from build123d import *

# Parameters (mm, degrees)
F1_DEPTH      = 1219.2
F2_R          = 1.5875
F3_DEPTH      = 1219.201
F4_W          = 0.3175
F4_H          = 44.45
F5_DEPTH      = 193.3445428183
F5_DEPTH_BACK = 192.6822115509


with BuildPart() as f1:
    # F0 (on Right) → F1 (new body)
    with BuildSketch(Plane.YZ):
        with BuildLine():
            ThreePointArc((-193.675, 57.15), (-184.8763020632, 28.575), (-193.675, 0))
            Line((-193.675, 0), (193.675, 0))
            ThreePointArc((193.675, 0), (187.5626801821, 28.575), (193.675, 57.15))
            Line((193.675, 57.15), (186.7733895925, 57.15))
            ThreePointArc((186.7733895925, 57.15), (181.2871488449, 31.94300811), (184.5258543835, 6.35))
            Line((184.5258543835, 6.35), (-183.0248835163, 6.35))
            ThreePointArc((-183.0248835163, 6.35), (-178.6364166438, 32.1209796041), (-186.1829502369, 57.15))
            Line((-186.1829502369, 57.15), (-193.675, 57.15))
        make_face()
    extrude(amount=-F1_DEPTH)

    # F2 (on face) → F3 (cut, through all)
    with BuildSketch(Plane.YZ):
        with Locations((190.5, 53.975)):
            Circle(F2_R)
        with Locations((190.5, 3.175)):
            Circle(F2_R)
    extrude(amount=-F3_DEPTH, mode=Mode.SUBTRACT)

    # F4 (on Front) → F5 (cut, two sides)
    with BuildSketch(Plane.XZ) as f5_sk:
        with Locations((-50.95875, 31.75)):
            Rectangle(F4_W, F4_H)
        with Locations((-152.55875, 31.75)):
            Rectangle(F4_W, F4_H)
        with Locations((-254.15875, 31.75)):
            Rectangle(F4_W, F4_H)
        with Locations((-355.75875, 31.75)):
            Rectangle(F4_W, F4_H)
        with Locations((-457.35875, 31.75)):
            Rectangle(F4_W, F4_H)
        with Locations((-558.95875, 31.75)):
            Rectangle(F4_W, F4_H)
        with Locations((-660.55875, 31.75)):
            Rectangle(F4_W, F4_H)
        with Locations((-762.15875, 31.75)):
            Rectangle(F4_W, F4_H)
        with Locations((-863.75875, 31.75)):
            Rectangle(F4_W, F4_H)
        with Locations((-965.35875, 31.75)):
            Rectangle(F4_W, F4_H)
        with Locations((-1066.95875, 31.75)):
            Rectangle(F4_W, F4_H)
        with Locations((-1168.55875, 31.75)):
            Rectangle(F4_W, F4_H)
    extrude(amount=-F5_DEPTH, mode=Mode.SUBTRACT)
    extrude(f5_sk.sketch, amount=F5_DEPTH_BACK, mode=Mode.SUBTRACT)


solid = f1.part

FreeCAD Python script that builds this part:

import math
import FreeCAD as App
import Part
import Sketcher
from FreeCAD import Vector
Q = App.Units.Quantity

doc = App.newDocument("Part")
params = doc.addObject("Spreadsheet::Sheet", "Params")
for row, (alias, value) in enumerate([
    ("sketch1_radius", "2 in"),
    ("sketch1_radius2", "3 in"),
    ("sketch1_radius3", "2.75 in"),
    ("sketch1_radius4", "2.25 in"),
    ("sketch1_width", "15.25 in"),
    ("pad1_length", "48 in"),
    ("sketch2_diameter", "0.125 in"),
    ("sketch3_height", "1.75 in"),
], start=1):
    params.set(f"A{row}", alias)
    params.set(f"B{row}", "=" + value)
    params.setAlias(f"B{row}", alias)

body = doc.addObject("PartDesign::Body", "Body")

# Sketch on YZ plane
sketch1 = body.newObject("Sketcher::SketchObject", "Sketch")
sketch1.AttachmentSupport = (doc.getObject("YZ_Plane"), [""])
sketch1.MapMode = "FlatFace"
sketch1.addGeometry(Part.ArcOfCircle(Part.Circle(Vector(-236, 29, 0), Vector(0, 0, 1), 51), math.radians(-34), math.radians(34)), False)
sketch1.addGeometry(Part.LineSegment(Vector(-194, 0, 0), Vector(194, 0, 0)), False)
sketch1.addGeometry(Part.ArcOfCircle(Part.Circle(Vector(257, 29, 0), Vector(0, 0, 1), 70), math.radians(156), math.radians(204)), False)
sketch1.addGeometry(Part.LineSegment(Vector(194, 57, 0), Vector(187, 57, 0)), False)
sketch1.addGeometry(Part.ArcOfCircle(Part.Circle(Vector(257, 29, 0), Vector(0, 0, 1), 76), math.radians(158), math.radians(197)), False)
sketch1.addGeometry(Part.LineSegment(Vector(185, 6, 0), Vector(-183, 6, 0)), False)
sketch1.addGeometry(Part.ArcOfCircle(Part.Circle(Vector(-236, 29, 0), Vector(0, 0, 1), 57), math.radians(-23), math.radians(30)), False)
sketch1.addGeometry(Part.LineSegment(Vector(-186, 57, 0), Vector(-194, 57, 0)), False)
sketch1.addConstraint(Sketcher.Constraint("Coincident", 0, 1, 1, 1))
sketch1.addConstraint(Sketcher.Constraint("Coincident", 1, 2, 2, 2))
sketch1.addConstraint(Sketcher.Constraint("Coincident", 2, 1, 3, 1))
sketch1.addConstraint(Sketcher.Constraint("Coincident", 3, 2, 4, 1))
sketch1.addConstraint(Sketcher.Constraint("Coincident", 4, 2, 5, 1))
sketch1.addConstraint(Sketcher.Constraint("Coincident", 5, 2, 6, 1))
sketch1.addConstraint(Sketcher.Constraint("Coincident", 6, 2, 7, 1))
sketch1.addConstraint(Sketcher.Constraint("Coincident", 7, 2, 0, 2))
sketch1.addConstraint(Sketcher.Constraint("Horizontal", 1))
sketch1.addConstraint(Sketcher.Constraint("Horizontal", 3))
sketch1.addConstraint(Sketcher.Constraint("Horizontal", 5))
sketch1.addConstraint(Sketcher.Constraint("Horizontal", 7))
sketch1.addConstraint(Sketcher.Constraint("Coincident", 4, 3, 2, 3))
sketch1.addConstraint(Sketcher.Constraint("Coincident", 6, 3, 0, 3))
sketch1.addConstraint(Sketcher.Constraint("Symmetric", 0, 1, 1, 2, -1, 1))
sketch1.addConstraint(Sketcher.Constraint("Symmetric", 2, 1, 7, 2, -2))
sketch1.addConstraint(Sketcher.Constraint("Horizontal", 0, 3, 2, 3))
sketch1.addConstraint(Sketcher.Constraint("Radius", 0, Q("2 in")))
sketch1.addConstraint(Sketcher.Constraint("Radius", 4, Q("3 in")))
sketch1.addConstraint(Sketcher.Constraint("Radius", 2, Q("2.75 in")))
sketch1.addConstraint(Sketcher.Constraint("Radius", 6, Q("2.25 in")))
sketch1.addConstraint(Sketcher.Constraint("DistanceY", 4, 2, 3, 2, Q("2 in")))
sketch1.addConstraint(Sketcher.Constraint("DistanceX", 1, 1, 1, 2, Q("15.25 in")))
sketch1.addConstraint(Sketcher.Constraint("DistanceY", -1, 1, 2, 1, Q("2.25 in")))
sketch1.setExpression("Constraints[17]", "Params.sketch1_radius")
sketch1.setExpression("Constraints[18]", "Params.sketch1_radius2")
sketch1.setExpression("Constraints[19]", "Params.sketch1_radius3")
sketch1.setExpression("Constraints[20]", "Params.sketch1_radius4")
sketch1.setExpression("Constraints[22]", "Params.sketch1_width")
pad1 = body.newObject("PartDesign::Pad", "Pad")
pad1.Profile = sketch1
pad1.setExpression("Length", "Params.pad1_length")
pad1.Reversed = True

# Sketch on YZ plane
sketch2 = body.newObject("Sketcher::SketchObject", "Sketch001")
sketch2.AttachmentSupport = (doc.getObject("YZ_Plane"), [""])
sketch2.MapMode = "FlatFace"
sketch2.addGeometry(Part.Circle(Vector(190.5, 54, 0), Vector(0, 0, 1), 1.6), False)
sketch2.addGeometry(Part.Circle(Vector(190.5, 3.2, 0), Vector(0, 0, 1), 1.6), False)
sketch2.addConstraint(Sketcher.Constraint("Equal", 0, 1))
sketch2.addConstraint(Sketcher.Constraint("Vertical", 0, 3, 1, 3))
sketch2.addConstraint(Sketcher.Constraint("Diameter", 0, Q("0.125 in")))
sketch2.addConstraint(Sketcher.Constraint("DistanceY", 1, 3, 0, 3, Q("2 in")))
sketch2.addConstraint(Sketcher.Constraint("DistanceX", -1, 1, 0, 3, Q("7.5 in")))
sketch2.addConstraint(Sketcher.Constraint("DistanceY", -1, 1, 0, 3, Q("2.125 in")))
sketch2.setExpression("Constraints[2]", "Params.sketch2_diameter")
pocket1 = body.newObject("PartDesign::Pocket", "Pocket")
pocket1.Profile = sketch2
pocket1.Type = "ThroughAll"

# Sketch on XZ plane
sketch3 = body.newObject("Sketcher::SketchObject", "Sketch002")
sketch3.AttachmentSupport = (doc.getObject("XZ_Plane"), [""])
sketch3.MapMode = "FlatFace"
sketch3.addGeometry(Part.LineSegment(Vector(-51.12, 53.98, 0), Vector(-51.12, 9.53, 0)), False)
sketch3.addGeometry(Part.LineSegment(Vector(-51.12, 9.53, 0), Vector(-50.8, 9.53, 0)), False)
sketch3.addGeometry(Part.LineSegment(Vector(-50.8, 9.53, 0), Vector(-50.8, 53.98, 0)), False)
sketch3.addGeometry(Part.LineSegment(Vector(-50.8, 53.98, 0), Vector(-51.12, 53.98, 0)), False)
sketch3.addGeometry(Part.LineSegment(Vector(-152.72, 53.98, 0), Vector(-152.72, 9.53, 0)), False)
sketch3.addGeometry(Part.LineSegment(Vector(-152.72, 9.53, 0), Vector(-152.4, 9.53, 0)), False)
sketch3.addGeometry(Part.LineSegment(Vector(-152.4, 9.53, 0), Vector(-152.4, 53.98, 0)), False)
sketch3.addGeometry(Part.LineSegment(Vector(-152.4, 53.98, 0), Vector(-152.72, 53.98, 0)), False)
sketch3.addGeometry(Part.LineSegment(Vector(-254.32, 53.98, 0), Vector(-254.32, 9.53, 0)), False)
sketch3.addGeometry(Part.LineSegment(Vector(-254.32, 9.53, 0), Vector(-254, 9.53, 0)), False)
sketch3.addGeometry(Part.LineSegment(Vector(-254, 9.53, 0), Vector(-254, 53.98, 0)), False)
sketch3.addGeometry(Part.LineSegment(Vector(-254, 53.98, 0), Vector(-254.32, 53.98, 0)), False)
sketch3.addGeometry(Part.LineSegment(Vector(-355.92, 53.98, 0), Vector(-355.92, 9.53, 0)), False)
sketch3.addGeometry(Part.LineSegment(Vector(-355.92, 9.53, 0), Vector(-355.6, 9.53, 0)), False)
sketch3.addGeometry(Part.LineSegment(Vector(-355.6, 9.53, 0), Vector(-355.6, 53.98, 0)), False)
sketch3.addGeometry(Part.LineSegment(Vector(-355.6, 53.98, 0), Vector(-355.92, 53.98, 0)), False)
sketch3.addGeometry(Part.LineSegment(Vector(-457.52, 53.98, 0), Vector(-457.52, 9.53, 0)), False)
sketch3.addGeometry(Part.LineSegment(Vector(-457.52, 9.53, 0), Vector(-457.2, 9.53, 0)), False)
sketch3.addGeometry(Part.LineSegment(Vector(-457.2, 9.53, 0), Vector(-457.2, 53.98, 0)), False)
sketch3.addGeometry(Part.LineSegment(Vector(-457.2, 53.98, 0), Vector(-457.52, 53.98, 0)), False)
sketch3.addGeometry(Part.LineSegment(Vector(-559.12, 53.98, 0), Vector(-559.12, 9.53, 0)), False)
sketch3.addGeometry(Part.LineSegment(Vector(-559.12, 9.53, 0), Vector(-558.8, 9.53, 0)), False)
sketch3.addGeometry(Part.LineSegment(Vector(-558.8, 9.53, 0), Vector(-558.8, 53.98, 0)), False)
sketch3.addGeometry(Part.LineSegment(Vector(-558.8, 53.98, 0), Vector(-559.12, 53.98, 0)), False)
sketch3.addGeometry(Part.LineSegment(Vector(-660.72, 53.98, 0), Vector(-660.72, 9.53, 0)), False)
sketch3.addGeometry(Part.LineSegment(Vector(-660.72, 9.53, 0), Vector(-660.4, 9.53, 0)), False)
sketch3.addGeometry(Part.LineSegment(Vector(-660.4, 9.53, 0), Vector(-660.4, 53.98, 0)), False)
sketch3.addGeometry(Part.LineSegment(Vector(-660.4, 53.98, 0), Vector(-660.72, 53.98, 0)), False)
sketch3.addGeometry(Part.LineSegment(Vector(-762.32, 53.98, 0), Vector(-762.32, 9.53, 0)), False)
sketch3.addGeometry(Part.LineSegment(Vector(-762.32, 9.53, 0), Vector(-762, 9.53, 0)), False)
sketch3.addGeometry(Part.LineSegment(Vector(-762, 9.53, 0), Vector(-762, 53.98, 0)), False)
sketch3.addGeometry(Part.LineSegment(Vector(-762, 53.98, 0), Vector(-762.32, 53.98, 0)), False)
sketch3.addGeometry(Part.LineSegment(Vector(-863.92, 53.98, 0), Vector(-863.92, 9.53, 0)), False)
sketch3.addGeometry(Part.LineSegment(Vector(-863.92, 9.53, 0), Vector(-863.6, 9.53, 0)), False)
sketch3.addGeometry(Part.LineSegment(Vector(-863.6, 9.53, 0), Vector(-863.6, 53.98, 0)), False)
sketch3.addGeometry(Part.LineSegment(Vector(-863.6, 53.98, 0), Vector(-863.92, 53.98, 0)), False)
sketch3.addGeometry(Part.LineSegment(Vector(-965.52, 53.98, 0), Vector(-965.52, 9.53, 0)), False)
sketch3.addGeometry(Part.LineSegment(Vector(-965.52, 9.53, 0), Vector(-965.2, 9.53, 0)), False)
sketch3.addGeometry(Part.LineSegment(Vector(-965.2, 9.53, 0), Vector(-965.2, 53.98, 0)), False)
sketch3.addGeometry(Part.LineSegment(Vector(-965.2, 53.98, 0), Vector(-965.52, 53.98, 0)), False)
sketch3.addGeometry(Part.LineSegment(Vector(-1067.12, 53.98, 0), Vector(-1067.12, 9.53, 0)), False)
sketch3.addGeometry(Part.LineSegment(Vector(-1067.12, 9.53, 0), Vector(-1066.8, 9.53, 0)), False)
sketch3.addGeometry(Part.LineSegment(Vector(-1066.8, 9.53, 0), Vector(-1066.8, 53.98, 0)), False)
sketch3.addGeometry(Part.LineSegment(Vector(-1066.8, 53.98, 0), Vector(-1067.12, 53.98, 0)), False)
sketch3.addGeometry(Part.LineSegment(Vector(-1168.72, 53.98, 0), Vector(-1168.72, 9.53, 0)), False)
sketch3.addGeometry(Part.LineSegment(Vector(-1168.72, 9.53, 0), Vector(-1168.4, 9.53, 0)), False)
sketch3.addGeometry(Part.LineSegment(Vector(-1168.4, 9.53, 0), Vector(-1168.4, 53.98, 0)), False)
sketch3.addGeometry(Part.LineSegment(Vector(-1168.4, 53.98, 0), Vector(-1168.72, 53.98, 0)), False)
sketch3.addConstraint(Sketcher.Constraint("Coincident", 0, 2, 1, 1))
sketch3.addConstraint(Sketcher.Constraint("Coincident", 1, 2, 2, 1))
sketch3.addConstraint(Sketcher.Constraint("Coincident", 2, 2, 3, 1))
sketch3.addConstraint(Sketcher.Constraint("Coincident", 3, 2, 0, 1))
sketch3.addConstraint(Sketcher.Constraint("Coincident", 4, 2, 5, 1))
sketch3.addConstraint(Sketcher.Constraint("Coincident", 5, 2, 6, 1))
sketch3.addConstraint(Sketcher.Constraint("Coincident", 6, 2, 7, 1))
sketch3.addConstraint(Sketcher.Constraint("Coincident", 7, 2, 4, 1))
sketch3.addConstraint(Sketcher.Constraint("Coincident", 8, 2, 9, 1))
sketch3.addConstraint(Sketcher.Constraint("Coincident", 9, 2, 10, 1))
sketch3.addConstraint(Sketcher.Constraint("Coincident", 10, 2, 11, 1))
sketch3.addConstraint(Sketcher.Constraint("Coincident", 11, 2, 8, 1))
sketch3.addConstraint(Sketcher.Constraint("Coincident", 12, 2, 13, 1))
sketch3.addConstraint(Sketcher.Constraint("Coincident", 13, 2, 14, 1))
sketch3.addConstraint(Sketcher.Constraint("Coincident", 14, 2, 15, 1))
sketch3.addConstraint(Sketcher.Constraint("Coincident", 15, 2, 12, 1))
sketch3.addConstraint(Sketcher.Constraint("Coincident", 16, 2, 17, 1))
sketch3.addConstraint(Sketcher.Constraint("Coincident", 17, 2, 18, 1))
sketch3.addConstraint(Sketcher.Constraint("Coincident", 18, 2, 19, 1))
sketch3.addConstraint(Sketcher.Constraint("Coincident", 19, 2, 16, 1))
sketch3.addConstraint(Sketcher.Constraint("Coincident", 20, 2, 21, 1))
sketch3.addConstraint(Sketcher.Constraint("Coincident", 21, 2, 22, 1))
sketch3.addConstraint(Sketcher.Constraint("Coincident", 22, 2, 23, 1))
sketch3.addConstraint(Sketcher.Constraint("Coincident", 23, 2, 20, 1))
sketch3.addConstraint(Sketcher.Constraint("Coincident", 24, 2, 25, 1))
sketch3.addConstraint(Sketcher.Constraint("Coincident", 25, 2, 26, 1))
sketch3.addConstraint(Sketcher.Constraint("Coincident", 26, 2, 27, 1))
sketch3.addConstraint(Sketcher.Constraint("Coincident", 27, 2, 24, 1))
sketch3.addConstraint(Sketcher.Constraint("Coincident", 28, 2, 29, 1))
sketch3.addConstraint(Sketcher.Constraint("Coincident", 29, 2, 30, 1))
sketch3.addConstraint(Sketcher.Constraint("Coincident", 30, 2, 31, 1))
sketch3.addConstraint(Sketcher.Constraint("Coincident", 31, 2, 28, 1))
sketch3.addConstraint(Sketcher.Constraint("Coincident", 32, 2, 33, 1))
sketch3.addConstraint(Sketcher.Constraint("Coincident", 33, 2, 34, 1))
sketch3.addConstraint(Sketcher.Constraint("Coincident", 34, 2, 35, 1))
sketch3.addConstraint(Sketcher.Constraint("Coincident", 35, 2, 32, 1))
sketch3.addConstraint(Sketcher.Constraint("Coincident", 36, 2, 37, 1))
sketch3.addConstraint(Sketcher.Constraint("Coincident", 37, 2, 38, 1))
sketch3.addConstraint(Sketcher.Constraint("Coincident", 38, 2, 39, 1))
sketch3.addConstraint(Sketcher.Constraint("Coincident", 39, 2, 36, 1))
sketch3.addConstraint(Sketcher.Constraint("Coincident", 40, 2, 41, 1))
sketch3.addConstraint(Sketcher.Constraint("Coincident", 41, 2, 42, 1))
sketch3.addConstraint(Sketcher.Constraint("Coincident", 42, 2, 43, 1))
sketch3.addConstraint(Sketcher.Constraint("Coincident", 43, 2, 40, 1))
sketch3.addConstraint(Sketcher.Constraint("Coincident", 44, 2, 45, 1))
sketch3.addConstraint(Sketcher.Constraint("Coincident", 45, 2, 46, 1))
sketch3.addConstraint(Sketcher.Constraint("Coincident", 46, 2, 47, 1))
sketch3.addConstraint(Sketcher.Constraint("Coincident", 47, 2, 44, 1))
sketch3.addConstraint(Sketcher.Constraint("Vertical", 0))
sketch3.addConstraint(Sketcher.Constraint("Horizontal", 1))
sketch3.addConstraint(Sketcher.Constraint("Vertical", 2))
sketch3.addConstraint(Sketcher.Constraint("Horizontal", 3))
sketch3.addConstraint(Sketcher.Constraint("Vertical", 4))
sketch3.addConstraint(Sketcher.Constraint("Horizontal", 5))
sketch3.addConstraint(Sketcher.Constraint("Vertical", 6))
sketch3.addConstraint(Sketcher.Constraint("Horizontal", 7))
sketch3.addConstraint(Sketcher.Constraint("Vertical", 8))
sketch3.addConstraint(Sketcher.Constraint("Horizontal", 9))
sketch3.addConstraint(Sketcher.Constraint("Vertical", 10))
sketch3.addConstraint(Sketcher.Constraint("Horizontal", 11))
sketch3.addConstraint(Sketcher.Constraint("Vertical", 12))
sketch3.addConstraint(Sketcher.Constraint("Horizontal", 13))
sketch3.addConstraint(Sketcher.Constraint("Vertical", 14))
sketch3.addConstraint(Sketcher.Constraint("Horizontal", 15))
sketch3.addConstraint(Sketcher.Constraint("Vertical", 16))
sketch3.addConstraint(Sketcher.Constraint("Horizontal", 17))
sketch3.addConstraint(Sketcher.Constraint("Vertical", 18))
sketch3.addConstraint(Sketcher.Constraint("Horizontal", 19))
sketch3.addConstraint(Sketcher.Constraint("Vertical", 20))
sketch3.addConstraint(Sketcher.Constraint("Horizontal", 21))
sketch3.addConstraint(Sketcher.Constraint("Vertical", 22))
sketch3.addConstraint(Sketcher.Constraint("Horizontal", 23))
sketch3.addConstraint(Sketcher.Constraint("Vertical", 24))
sketch3.addConstraint(Sketcher.Constraint("Horizontal", 25))
sketch3.addConstraint(Sketcher.Constraint("Vertical", 26))
sketch3.addConstraint(Sketcher.Constraint("Horizontal", 27))
sketch3.addConstraint(Sketcher.Constraint("Vertical", 28))
sketch3.addConstraint(Sketcher.Constraint("Horizontal", 29))
sketch3.addConstraint(Sketcher.Constraint("Vertical", 30))
sketch3.addConstraint(Sketcher.Constraint("Horizontal", 31))
sketch3.addConstraint(Sketcher.Constraint("Vertical", 32))
sketch3.addConstraint(Sketcher.Constraint("Horizontal", 33))
sketch3.addConstraint(Sketcher.Constraint("Vertical", 34))
sketch3.addConstraint(Sketcher.Constraint("Horizontal", 35))
sketch3.addConstraint(Sketcher.Constraint("Vertical", 36))
sketch3.addConstraint(Sketcher.Constraint("Horizontal", 37))
sketch3.addConstraint(Sketcher.Constraint("Vertical", 38))
sketch3.addConstraint(Sketcher.Constraint("Horizontal", 39))
sketch3.addConstraint(Sketcher.Constraint("Vertical", 40))
sketch3.addConstraint(Sketcher.Constraint("Horizontal", 41))
sketch3.addConstraint(Sketcher.Constraint("Vertical", 42))
sketch3.addConstraint(Sketcher.Constraint("Horizontal", 43))
sketch3.addConstraint(Sketcher.Constraint("Vertical", 44))
sketch3.addConstraint(Sketcher.Constraint("Horizontal", 45))
sketch3.addConstraint(Sketcher.Constraint("Vertical", 46))
sketch3.addConstraint(Sketcher.Constraint("Horizontal", 47))
sketch3.addConstraint(Sketcher.Constraint("Horizontal", 1, 2, 4, 2))
sketch3.addConstraint(Sketcher.Constraint("Horizontal", 3, 2, 6, 2))
sketch3.addConstraint(Sketcher.Constraint("Horizontal", 5, 2, 8, 2))
sketch3.addConstraint(Sketcher.Constraint("Horizontal", 7, 2, 10, 2))
sketch3.addConstraint(Sketcher.Constraint("Horizontal", 9, 2, 12, 2))
sketch3.addConstraint(Sketcher.Constraint("Horizontal", 11, 2, 14, 2))
sketch3.addConstraint(Sketcher.Constraint("Horizontal", 13, 2, 16, 2))
sketch3.addConstraint(Sketcher.Constraint("Horizontal", 15, 2, 18, 2))
sketch3.addConstraint(Sketcher.Constraint("Horizontal", 17, 2, 20, 2))
sketch3.addConstraint(Sketcher.Constraint("Horizontal", 19, 2, 22, 2))
sketch3.addConstraint(Sketcher.Constraint("Horizontal", 21, 2, 24, 2))
sketch3.addConstraint(Sketcher.Constraint("Horizontal", 23, 2, 26, 2))
sketch3.addConstraint(Sketcher.Constraint("Horizontal", 25, 2, 28, 2))
sketch3.addConstraint(Sketcher.Constraint("Horizontal", 27, 2, 30, 2))
sketch3.addConstraint(Sketcher.Constraint("Horizontal", 29, 2, 32, 2))
sketch3.addConstraint(Sketcher.Constraint("Horizontal", 31, 2, 34, 2))
sketch3.addConstraint(Sketcher.Constraint("Horizontal", 33, 2, 36, 2))
sketch3.addConstraint(Sketcher.Constraint("Horizontal", 35, 2, 38, 2))
sketch3.addConstraint(Sketcher.Constraint("Horizontal", 37, 2, 40, 2))
sketch3.addConstraint(Sketcher.Constraint("Horizontal", 39, 2, 42, 2))
sketch3.addConstraint(Sketcher.Constraint("Horizontal", 41, 2, 44, 2))
sketch3.addConstraint(Sketcher.Constraint("Horizontal", 43, 2, 46, 2))
sketch3.addConstraint(Sketcher.Constraint("Equal", 3, 5))
sketch3.addConstraint(Sketcher.Constraint("Equal", 7, 9))
sketch3.addConstraint(Sketcher.Constraint("Equal", 11, 13))
sketch3.addConstraint(Sketcher.Constraint("Equal", 15, 17))
sketch3.addConstraint(Sketcher.Constraint("Equal", 19, 21))
sketch3.addConstraint(Sketcher.Constraint("Equal", 23, 25))
sketch3.addConstraint(Sketcher.Constraint("Equal", 27, 29))
sketch3.addConstraint(Sketcher.Constraint("Equal", 31, 33))
sketch3.addConstraint(Sketcher.Constraint("Equal", 35, 37))
sketch3.addConstraint(Sketcher.Constraint("Equal", 39, 41))
sketch3.addConstraint(Sketcher.Constraint("Equal", 43, 45))
sketch3.addConstraint(Sketcher.Constraint("DistanceX", 1, 2, -1, 1, Q("2 in")))
sketch3.addConstraint(Sketcher.Constraint("DistanceX", 5, 2, -1, 1, Q("6 in")))
sketch3.addConstraint(Sketcher.Constraint("DistanceX", 9, 2, -1, 1, Q("10 in")))
sketch3.addConstraint(Sketcher.Constraint("DistanceX", 13, 2, -1, 1, Q("14 in")))
sketch3.addConstraint(Sketcher.Constraint("DistanceX", 17, 2, -1, 1, Q("18 in")))
sketch3.addConstraint(Sketcher.Constraint("DistanceX", 21, 2, -1, 1, Q("22 in")))
sketch3.addConstraint(Sketcher.Constraint("DistanceX", 25, 2, -1, 1, Q("26 in")))
sketch3.addConstraint(Sketcher.Constraint("DistanceX", 29, 2, -1, 1, Q("30 in")))
sketch3.addConstraint(Sketcher.Constraint("DistanceX", 33, 2, -1, 1, Q("34 in")))
sketch3.addConstraint(Sketcher.Constraint("DistanceX", 37, 2, -1, 1, Q("38 in")))
sketch3.addConstraint(Sketcher.Constraint("DistanceX", 41, 2, -1, 1, Q("42 in")))
sketch3.addConstraint(Sketcher.Constraint("DistanceX", 45, 2, -1, 1, Q("46 in")))
sketch3.addConstraint(Sketcher.Constraint("DistanceY", 0, 2, 0, 1, Q("1.75 in")))
sketch3.addConstraint(Sketcher.Constraint("DistanceX", 1, 1, 1, 2, Q("0.0125 in")))
sketch3.addConstraint(Sketcher.Constraint("DistanceY", -1, 1, 0, 2, Q("0.375 in")))
sketch3.setExpression("Constraints[141]", "Params.sketch3_height")
pocket2 = body.newObject("PartDesign::Pocket", "Pocket001")
pocket2.Profile = sketch3
pocket2.Type = "ThroughAll"
pocket2.Midplane = True

doc.recompute()
